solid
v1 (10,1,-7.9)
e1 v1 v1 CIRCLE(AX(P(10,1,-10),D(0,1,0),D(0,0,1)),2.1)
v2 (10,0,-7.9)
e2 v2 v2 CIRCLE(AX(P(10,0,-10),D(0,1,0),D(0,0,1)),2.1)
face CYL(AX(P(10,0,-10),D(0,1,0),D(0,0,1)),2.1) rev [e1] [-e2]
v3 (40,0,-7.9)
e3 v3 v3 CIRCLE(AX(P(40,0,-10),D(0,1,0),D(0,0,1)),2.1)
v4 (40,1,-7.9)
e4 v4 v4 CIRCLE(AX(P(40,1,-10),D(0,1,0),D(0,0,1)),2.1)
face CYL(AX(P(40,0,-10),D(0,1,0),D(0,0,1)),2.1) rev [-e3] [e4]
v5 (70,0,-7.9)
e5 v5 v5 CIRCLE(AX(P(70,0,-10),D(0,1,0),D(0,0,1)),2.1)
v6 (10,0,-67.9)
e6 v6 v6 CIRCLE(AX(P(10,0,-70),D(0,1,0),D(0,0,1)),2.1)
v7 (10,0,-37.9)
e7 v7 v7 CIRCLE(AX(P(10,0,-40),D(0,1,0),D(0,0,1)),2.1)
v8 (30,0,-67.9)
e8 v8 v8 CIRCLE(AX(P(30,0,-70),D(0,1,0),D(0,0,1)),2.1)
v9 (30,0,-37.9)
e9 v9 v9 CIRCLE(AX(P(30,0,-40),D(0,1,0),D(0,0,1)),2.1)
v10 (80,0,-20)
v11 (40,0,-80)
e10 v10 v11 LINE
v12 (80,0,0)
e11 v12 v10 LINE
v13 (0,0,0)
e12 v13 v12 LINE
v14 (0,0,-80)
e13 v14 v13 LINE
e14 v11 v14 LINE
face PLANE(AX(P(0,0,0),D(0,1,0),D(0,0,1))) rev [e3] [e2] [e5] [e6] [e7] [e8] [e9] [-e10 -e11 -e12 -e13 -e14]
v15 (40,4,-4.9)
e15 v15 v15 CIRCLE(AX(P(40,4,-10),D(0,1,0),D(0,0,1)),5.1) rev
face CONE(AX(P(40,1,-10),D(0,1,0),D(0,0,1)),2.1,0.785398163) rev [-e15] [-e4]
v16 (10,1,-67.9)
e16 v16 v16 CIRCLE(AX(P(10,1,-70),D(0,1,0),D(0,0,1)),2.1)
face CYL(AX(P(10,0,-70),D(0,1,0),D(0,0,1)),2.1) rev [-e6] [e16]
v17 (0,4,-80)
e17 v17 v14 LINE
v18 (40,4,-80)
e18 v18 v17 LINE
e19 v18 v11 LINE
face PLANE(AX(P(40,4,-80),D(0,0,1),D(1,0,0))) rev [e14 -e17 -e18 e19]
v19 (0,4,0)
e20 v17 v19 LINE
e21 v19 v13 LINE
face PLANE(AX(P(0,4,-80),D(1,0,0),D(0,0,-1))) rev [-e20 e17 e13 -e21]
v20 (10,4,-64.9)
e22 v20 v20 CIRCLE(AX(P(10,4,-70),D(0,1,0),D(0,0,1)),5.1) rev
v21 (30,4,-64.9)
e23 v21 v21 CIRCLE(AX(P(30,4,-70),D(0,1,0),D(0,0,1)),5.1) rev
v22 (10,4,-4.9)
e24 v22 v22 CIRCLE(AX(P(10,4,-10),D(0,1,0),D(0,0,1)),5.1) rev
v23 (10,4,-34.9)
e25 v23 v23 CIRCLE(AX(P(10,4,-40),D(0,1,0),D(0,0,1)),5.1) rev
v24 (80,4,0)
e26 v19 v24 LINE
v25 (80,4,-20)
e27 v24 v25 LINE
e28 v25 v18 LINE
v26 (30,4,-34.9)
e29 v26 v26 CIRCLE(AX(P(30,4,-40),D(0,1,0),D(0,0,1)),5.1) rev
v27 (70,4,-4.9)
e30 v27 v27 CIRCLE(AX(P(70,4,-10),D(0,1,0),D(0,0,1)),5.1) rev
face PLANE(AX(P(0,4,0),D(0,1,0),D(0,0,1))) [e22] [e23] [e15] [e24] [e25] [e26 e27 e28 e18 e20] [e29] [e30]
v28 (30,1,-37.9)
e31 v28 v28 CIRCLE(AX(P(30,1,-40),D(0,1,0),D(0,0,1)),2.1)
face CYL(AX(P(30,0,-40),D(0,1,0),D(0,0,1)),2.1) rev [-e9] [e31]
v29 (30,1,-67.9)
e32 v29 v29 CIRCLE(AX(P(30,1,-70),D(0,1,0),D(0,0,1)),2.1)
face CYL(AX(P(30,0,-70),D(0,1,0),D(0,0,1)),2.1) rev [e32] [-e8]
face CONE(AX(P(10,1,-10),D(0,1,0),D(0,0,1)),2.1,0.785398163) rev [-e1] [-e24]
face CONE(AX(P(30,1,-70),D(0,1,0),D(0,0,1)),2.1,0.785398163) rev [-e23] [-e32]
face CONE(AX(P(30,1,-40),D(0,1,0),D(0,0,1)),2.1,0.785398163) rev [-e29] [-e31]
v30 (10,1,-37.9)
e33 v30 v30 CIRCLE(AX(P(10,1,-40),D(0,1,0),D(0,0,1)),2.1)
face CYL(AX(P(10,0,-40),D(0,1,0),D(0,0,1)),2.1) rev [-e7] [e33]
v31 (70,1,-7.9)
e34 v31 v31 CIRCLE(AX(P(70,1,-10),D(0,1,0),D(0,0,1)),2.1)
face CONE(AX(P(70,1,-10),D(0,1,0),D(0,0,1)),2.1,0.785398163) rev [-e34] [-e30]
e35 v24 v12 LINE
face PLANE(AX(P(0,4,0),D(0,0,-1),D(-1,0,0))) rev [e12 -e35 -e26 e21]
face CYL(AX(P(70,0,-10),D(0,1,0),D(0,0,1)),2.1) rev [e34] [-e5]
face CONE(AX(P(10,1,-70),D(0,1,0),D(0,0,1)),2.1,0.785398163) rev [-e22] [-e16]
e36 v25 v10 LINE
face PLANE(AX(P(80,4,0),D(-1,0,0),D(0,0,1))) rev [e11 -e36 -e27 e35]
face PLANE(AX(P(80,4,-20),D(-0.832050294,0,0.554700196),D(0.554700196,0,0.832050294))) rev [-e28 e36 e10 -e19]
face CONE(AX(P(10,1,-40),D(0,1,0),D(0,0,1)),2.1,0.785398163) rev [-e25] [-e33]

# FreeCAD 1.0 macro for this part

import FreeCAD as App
import Part
import Sketcher
Q = App.Units.Quantity


def edges_at(feature, points):
    """Names of the edges that pass closest to the given points."""
    edges = feature.Shape.Edges
    near = lambda p: min(range(len(edges)), key=lambda i: edges[i].distToShape(Part.Vertex(*p))[0])
    return sorted({f"Edge{near(p) + 1}" for p in points})

doc = App.newDocument("Part")
params = doc.addObject("Spreadsheet::Sheet", "Params")
for row, (alias, value) in enumerate([
    ("sketch1_width", "80 mm"),
    ("sketch1_width2", "40 mm"),
    ("sketch1_height", "20 mm"),
    ("pad1_length", "4 mm"),
    ("sketch2_diameter", "4.2 mm"),
    ("pocket1_length", "4 mm"),
    ("chamfer_size", "3 mm"),
], start=1):
    params.set(f"A{row}", alias)
    params.set(f"B{row}", "=" + value)
    params.setAlias(f"B{row}", alias)

body = doc.addObject("PartDesign::Body", "Body")

# Sketch on XZ plane
sketch1 = body.newObject("Sketcher::SketchObject", "Sketch")
sketch1.AttachmentSupport = (doc.getObject("XZ_Plane"), [""])
sketch1.MapMode = "FlatFace"
sketch1.addGeometry([
    Part.LineSegment(App.Vector(0, 0, 0), App.Vector(80, 0, 0)),  # 0
    Part.LineSegment(App.Vector(80, 0, 0), App.Vector(80, -20, 0)),  # 1
    Part.LineSegment(App.Vector(80, -20, 0), App.Vector(40, -80, 0)),  # 2
    Part.LineSegment(App.Vector(40, -80, 0), App.Vector(0, -80, 0)),  # 3
    Part.LineSegment(App.Vector(0, -80, 0), App.Vector(0, 0, 0)),  # 4
], False)
sketch1.addConstraint([
    Sketcher.Constraint("Coincident", 0, 2, 1, 1),
    Sketcher.Constraint("Coincident", 1, 2, 2, 1),
    Sketcher.Constraint("Coincident", 2, 2, 3, 1),
    Sketcher.Constraint("Coincident", 3, 2, 4, 1),
    Sketcher.Constraint("Coincident", 4, 2, 0, 1),
    Sketcher.Constraint("Horizontal", 0),
    Sketcher.Constraint("Vertical", 1),
    Sketcher.Constraint("Horizontal", 3),
    Sketcher.Constraint("Vertical", 4),
    Sketcher.Constraint("Coincident", 4, 2, -1, 1),
    Sketcher.Constraint("Equal", 0, 4),
    Sketcher.Constraint("DistanceX", 0, 1, 0, 2, Q("80 mm")),
    Sketcher.Constraint("DistanceX", 3, 2, 3, 1, Q("40 mm")),
    Sketcher.Constraint("DistanceY", 1, 2, 1, 1, Q("20 mm")),
])
sketch1.setExpression("Constraints[11]", "Params.sketch1_width")
sketch1.setExpression("Constraints[12]", "Params.sketch1_width2")
sketch1.setExpression("Constraints[13]", "Params.sketch1_height")
pad1 = body.newObject("PartDesign::Pad", "Pad")
pad1.Profile = sketch1
pad1.setExpression("Length", "Params.pad1_length")
pad1.Reversed = True

# Sketch on XZ plane
sketch2 = body.newObject("Sketcher::SketchObject", "Sketch001")
sketch2.AttachmentSupport = (doc.getObject("XZ_Plane"), [""])
sketch2.MapMode = "FlatFace"
sketch2.AttachmentOffset = App.Placement(App.Vector(0, 0, -4), App.Rotation())
sketch2.addGeometry([
    Part.Circle(App.Vector(10, -10, 0), App.Vector(0, 0, 1), 2.1),  # 0
    Part.Circle(App.Vector(40, -10, 0), App.Vector(0, 0, 1), 2.1),  # 1
    Part.Circle(App.Vector(70, -10, 0), App.Vector(0, 0, 1), 2.1),  # 2
    Part.Circle(App.Vector(30, -40, 0), App.Vector(0, 0, 1), 2.1),  # 3
    Part.Circle(App.Vector(30, -70, 0), App.Vector(0, 0, 1), 2.1),  # 4
    Part.Circle(App.Vector(10, -40, 0), App.Vector(0, 0, 1), 2.1),  # 5
    Part.Circle(App.Vector(10, -70, 0), App.Vector(0, 0, 1), 2.1),  # 6
], False)
sketch2.addConstraint([
    Sketcher.Constraint("Equal", 0, 1),
    Sketcher.Constraint("Equal", 1, 2),
    Sketcher.Constraint("Equal", 2, 3),
    Sketcher.Constraint("Equal", 3, 4),
    Sketcher.Constraint("Equal", 4, 5),
    Sketcher.Constraint("Equal", 5, 6),
    Sketcher.Constraint("Horizontal", 0, 3, 1, 3),
    Sketcher.Constraint("Horizontal", 1, 3, 2, 3),
    Sketcher.Constraint("Horizontal", 3, 3, 5, 3),
    Sketcher.Constraint("Horizontal", 4, 3, 6, 3),
    Sketcher.Constraint("Vertical", 3, 3, 4, 3),
    Sketcher.Constraint("Vertical", 0, 3, 5, 3),
    Sketcher.Constraint("Vertical", 5, 3, 6, 3),
    Sketcher.Constraint("Diameter", 0, Q("4.2 mm")),
    Sketcher.Constraint("DistanceX", -1, 1, 0, 3, Q("10 mm")),
    Sketcher.Constraint("DistanceY", 0, 3, -1, 1, Q("10 mm")),
    Sketcher.Constraint("DistanceX", -1, 1, 1, 3, Q("40 mm")),
    Sketcher.Constraint("DistanceX", -1, 1, 2, 3, Q("70 mm")),
    Sketcher.Constraint("DistanceX", -1, 1, 3, 3, Q("30 mm")),
    Sketcher.Constraint("DistanceY", 3, 3, -1, 1, Q("40 mm")),
    Sketcher.Constraint("DistanceY", 4, 3, -1, 1, Q("70 mm")),
])
sketch2.setExpression("Constraints[13]", "Params.sketch2_diameter")
pocket1 = body.newObject("PartDesign::Pocket", "Pocket")
pocket1.Profile = sketch2
pocket1.setExpression("Length", "Params.pocket1_length")
pocket1.Reversed = True
doc.recompute()

chamfer = body.newObject("PartDesign::Chamfer", "Chamfer")
chamfer.Base = (pocket1, edges_at(pocket1, [
    (7.9, 4, -70),
    (7.9, 4, -40),
    (27.9, 4, -70),
    (27.9, 4, -40),
    (67.9, 4, -10),
    (37.9, 4, -10),
    (7.9, 4, -10),
]))
chamfer.setExpression("Size", "Params.chamfer_size")

doc.recompute()
